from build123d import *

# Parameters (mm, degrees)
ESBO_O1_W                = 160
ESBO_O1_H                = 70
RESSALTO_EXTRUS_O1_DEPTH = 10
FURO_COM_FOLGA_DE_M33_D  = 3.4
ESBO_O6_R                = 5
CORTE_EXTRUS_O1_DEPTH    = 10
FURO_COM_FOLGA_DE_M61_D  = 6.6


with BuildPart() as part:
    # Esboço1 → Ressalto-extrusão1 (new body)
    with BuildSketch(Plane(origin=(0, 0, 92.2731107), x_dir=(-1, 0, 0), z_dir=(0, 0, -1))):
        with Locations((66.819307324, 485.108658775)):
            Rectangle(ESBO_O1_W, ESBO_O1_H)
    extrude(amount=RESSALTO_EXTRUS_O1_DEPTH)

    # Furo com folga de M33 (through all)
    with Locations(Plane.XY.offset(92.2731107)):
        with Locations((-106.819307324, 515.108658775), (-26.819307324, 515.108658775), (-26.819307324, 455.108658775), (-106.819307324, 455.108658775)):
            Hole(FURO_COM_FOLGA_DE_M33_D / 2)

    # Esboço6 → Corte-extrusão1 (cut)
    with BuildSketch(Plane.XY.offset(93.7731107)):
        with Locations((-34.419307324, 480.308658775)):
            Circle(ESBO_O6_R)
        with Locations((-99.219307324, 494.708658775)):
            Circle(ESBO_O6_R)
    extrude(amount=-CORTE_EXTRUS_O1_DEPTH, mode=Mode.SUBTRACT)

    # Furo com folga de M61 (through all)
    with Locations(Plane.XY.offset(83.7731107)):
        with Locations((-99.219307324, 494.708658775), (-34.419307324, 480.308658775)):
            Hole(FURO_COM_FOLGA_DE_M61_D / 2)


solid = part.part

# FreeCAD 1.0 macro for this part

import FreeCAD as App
import Part
import Sketcher
Q = App.Units.Quantity


def add_polygon(sketch, points):
    """Adds a closed chain of lines whose ends are joined by coincident constraints."""
    first, n = sketch.GeometryCount, len(points)
    for a, b in zip(points, points[1:] + points[:1]):
        sketch.addGeometry(Part.LineSegment(App.Vector(*a, 0), App.Vector(*b, 0)), False)
    for i in range(n):
        sketch.addConstraint(Sketcher.Constraint("Coincident", first + i, 2, first + (i + 1) % n, 1))

doc = App.newDocument("Part")
params = doc.addObject("Spreadsheet::Sheet", "Params")
for row, (alias, value) in enumerate([
    ("sketch1_width", "160 mm"),
    ("sketch1_height", "70 mm"),
    ("pad1_length", "10 mm"),
    ("sketch2_diameter", "3.4 mm"),
    ("hole_diameter", "3.4 mm"),
    ("sketch3_diameter", "10 mm"),
    ("pocket1_length", "10 mm"),
    ("sketch4_diameter", "6.6 mm"),
    ("hole2_diameter", "6.6 mm"),
], start=1):
    params.set(f"A{row}", alias)
    params.set(f"B{row}", "=" + value)
    params.setAlias(f"B{row}", alias)

body = doc.addObject("PartDesign::Body", "Body")

# Sketch on XY plane
sketch1 = body.newObject("Sketcher::SketchObject", "Sketch")
sketch1.AttachmentSupport = (doc.getObject("XY_Plane"), [""])
sketch1.MapMode = "FlatFace"
sketch1.AttachmentOffset = App.Placement(App.Vector(0, 0, 92.273111), App.Rotation())
add_polygon(sketch1, [(13, 520), (13, 450), (-147, 450), (-147, 520)])  # lines 0-3
sketch1.addConstraint(Sketcher.Constraint("Vertical", 0))
sketch1.addConstraint(Sketcher.Constraint("Horizontal", 1))
sketch1.addConstraint(Sketcher.Constraint("Vertical", 2))
sketch1.addConstraint(Sketcher.Constraint("Horizontal", 3))
sketch1.addConstraint(Sketcher.Constraint("DistanceX", 1, 2, 1, 1, Q("160 mm")))
sketch1.addConstraint(Sketcher.Constraint("DistanceY", 0, 2, 0, 1, Q("70 mm")))
sketch1.addConstraint(Sketcher.Constraint("DistanceY", -1, 1, 0, 2, Q("450.108659 mm")))
sketch1.addConstraint(Sketcher.Constraint("DistanceX", -1, 1, 0, 2, Q("13.180693 mm")))
sketch1.setExpression("Constraints[8]", "Params.sketch1_width")
sketch1.setExpression("Constraints[9]", "Params.sketch1_height")
pad1 = body.newObject("PartDesign::Pad", "Pad")
pad1.Profile = sketch1
pad1.setExpression("Length", "Params.pad1_length")
pad1.Reversed = True

# Sketch on XY plane
sketch2 = body.newObject("Sketcher::SketchObject", "Sketch001")
sketch2.AttachmentSupport = (doc.getObject("XY_Plane"), [""])
sketch2.MapMode = "FlatFace"
sketch2.AttachmentOffset = App.Placement(App.Vector(0, 0, 92.273111), App.Rotation())
sketch2.addGeometry(Part.Circle(App.Vector(-106.8, 515.1, 0), App.Vector(0, 0, 1), 1.7), False)
sketch2.addGeometry(Part.Circle(App.Vector(-26.8, 515.1, 0), App.Vector(0, 0, 1), 1.7), False)
sketch2.addGeometry(Part.Circle(App.Vector(-26.8, 455.1, 0), App.Vector(0, 0, 1), 1.7), False)
sketch2.addGeometry(Part.Circle(App.Vector(-106.8, 455.1, 0), App.Vector(0, 0, 1), 1.7), False)
sketch2.addConstraint(Sketcher.Constraint("Equal", 0, 1))
sketch2.addConstraint(Sketcher.Constraint("Equal", 1, 2))
sketch2.addConstraint(Sketcher.Constraint("Equal", 2, 3))
sketch2.addConstraint(Sketcher.Constraint("Horizontal", 0, 3, 1, 3))
sketch2.addConstraint(Sketcher.Constraint("Horizontal", 2, 3, 3, 3))
sketch2.addConstraint(Sketcher.Constraint("Vertical", 1, 3, 2, 3))
sketch2.addConstraint(Sketcher.Constraint("Vertical", 0, 3, 3, 3))
sketch2.addConstraint(Sketcher.Constraint("Diameter", 0, Q("3.4 mm")))
sketch2.addConstraint(Sketcher.Constraint("DistanceX", 0, 3, 1, 3, Q("80 mm")))
sketch2.addConstraint(Sketcher.Constraint("DistanceY", 2, 3, 1, 3, Q("60 mm")))
sketch2.addConstraint(Sketcher.Constraint("DistanceY", -1, 1, 0, 3, Q("515.108659 mm")))
sketch2.addConstraint(Sketcher.Constraint("DistanceX", 0, 3, -1, 1, Q("106.819307 mm")))
sketch2.setExpression("Constraints[7]", "Params.sketch2_diameter")
doc.recompute()
hole = body.newObject("PartDesign::Hole", "Hole")
hole.Profile = sketch2
hole.ThreadType = "None"
hole.setExpression("Diameter", "Params.hole_diameter")
hole.DepthType = "ThroughAll"

# Sketch on XY plane
sketch3 = body.newObject("Sketcher::SketchObject", "Sketch002")
sketch3.AttachmentSupport = (doc.getObject("XY_Plane"), [""])
sketch3.MapMode = "FlatFace"
sketch3.AttachmentOffset = App.Placement(App.Vector(0, 0, 93.773111), App.Rotation())
sketch3.addGeometry(Part.Circle(App.Vector(-34, 480, 0), App.Vector(0, 0, 1), 5), False)
sketch3.addGeometry(Part.Circle(App.Vector(-99, 495, 0), App.Vector(0, 0, 1), 5), False)
sketch3.addConstraint(Sketcher.Constraint("Equal", 0, 1))
sketch3.addConstraint(Sketcher.Constraint("Diameter", 0, Q("10 mm")))
sketch3.addConstraint(Sketcher.Constraint("DistanceX", 1, 3, 0, 3, Q("64.8 mm")))
sketch3.addConstraint(Sketcher.Constraint("DistanceY", 0, 3, 1, 3, Q("14.4 mm")))
sketch3.addConstraint(Sketcher.Constraint("DistanceY", -1, 1, 0, 3, Q("480.308659 mm")))
sketch3.addConstraint(Sketcher.Constraint("DistanceX", 0, 3, -1, 1, Q("34.419307 mm")))
sketch3.setExpression("Constraints[1]", "Params.sketch3_diameter")
pocket1 = body.newObject("PartDesign::Pocket", "Pocket")
pocket1.Profile = sketch3
pocket1.setExpression("Length", "Params.pocket1_length")

# Sketch on XY plane
sketch4 = body.newObject("Sketcher::SketchObject", "Sketch003")
sketch4.AttachmentSupport = (doc.getObject("XY_Plane"), [""])
sketch4.MapMode = "FlatFace"
sketch4.AttachmentOffset = App.Placement(App.Vector(0, 0, 83.773111), App.Rotation())
sketch4.addGeometry(Part.Circle(App.Vector(-99.2, 494.7, 0), App.Vector(0, 0, 1), 3.3), False)
sketch4.addGeometry(Part.Circle(App.Vector(-34.4, 480.3, 0), App.Vector(0, 0, 1), 3.3), False)
sketch4.addConstraint(Sketcher.Constraint("Equal", 0, 1))
sketch4.addConstraint(Sketcher.Constraint("Diameter", 0, Q("6.6 mm")))
sketch4.addConstraint(Sketcher.Constraint("DistanceX", 0, 3, 1, 3, Q("64.8 mm")))
sketch4.addConstraint(Sketcher.Constraint("DistanceY", 1, 3, 0, 3, Q("14.4 mm")))
sketch4.addConstraint(Sketcher.Constraint("DistanceY", -1, 1, 0, 3, Q("494.708659 mm")))
sketch4.addConstraint(Sketcher.Constraint("DistanceX", 0, 3, -1, 1, Q("99.219307 mm")))
sketch4.setExpression("Constraints[1]", "Params.sketch4_diameter")
doc.recompute()
hole2 = body.newObject("PartDesign::Hole", "Hole001")
hole2.Profile = sketch4
hole2.ThreadType = "None"
hole2.setExpression("Diameter", "Params.hole2_diameter")
hole2.DepthType = "ThroughAll"

doc.recompute()
